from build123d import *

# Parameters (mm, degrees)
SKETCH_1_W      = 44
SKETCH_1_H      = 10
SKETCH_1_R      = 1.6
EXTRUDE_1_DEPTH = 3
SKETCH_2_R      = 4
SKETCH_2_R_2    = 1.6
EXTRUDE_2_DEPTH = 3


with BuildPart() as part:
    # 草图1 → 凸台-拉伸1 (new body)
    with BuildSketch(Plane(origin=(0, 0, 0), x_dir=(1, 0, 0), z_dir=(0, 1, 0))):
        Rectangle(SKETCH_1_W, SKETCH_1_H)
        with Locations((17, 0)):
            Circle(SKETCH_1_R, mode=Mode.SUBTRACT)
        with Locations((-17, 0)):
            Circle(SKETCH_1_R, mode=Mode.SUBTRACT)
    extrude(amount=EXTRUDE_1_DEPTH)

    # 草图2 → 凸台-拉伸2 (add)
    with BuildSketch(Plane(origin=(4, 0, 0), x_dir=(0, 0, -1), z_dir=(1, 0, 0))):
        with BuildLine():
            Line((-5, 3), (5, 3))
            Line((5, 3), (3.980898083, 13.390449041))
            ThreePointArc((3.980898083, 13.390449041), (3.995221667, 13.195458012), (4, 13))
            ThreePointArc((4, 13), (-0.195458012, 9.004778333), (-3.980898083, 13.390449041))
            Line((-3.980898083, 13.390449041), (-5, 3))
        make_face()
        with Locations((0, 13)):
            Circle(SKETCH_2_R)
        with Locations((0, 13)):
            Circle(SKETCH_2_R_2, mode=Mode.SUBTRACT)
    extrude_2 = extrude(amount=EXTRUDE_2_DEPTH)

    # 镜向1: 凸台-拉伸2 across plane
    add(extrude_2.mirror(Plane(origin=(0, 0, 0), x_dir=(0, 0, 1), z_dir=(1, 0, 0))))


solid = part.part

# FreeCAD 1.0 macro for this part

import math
import FreeCAD as App
import Part
import Sketcher

V = App.Vector


def add_polygon(sketch, points):
    """Adds a closed chain of lines whose ends are joined by coincident constraints."""
    first, n = sketch.GeometryCount, len(points)
    for a, b in zip(points, points[1:] + points[:1]):
        sketch.addGeometry(Part.LineSegment(App.Vector(*a, 0), App.Vector(*b, 0)), False)
    for i in range(n):
        sketch.addConstraint(Sketcher.Constraint("Coincident", first + i, 2, first + (i + 1) % n, 1))

doc = App.newDocument("Part")
params = doc.addObject("Spreadsheet::Sheet", "Params")
for row, (alias, value) in enumerate([
    ("sketch1_diameter", "3.2 mm"),
    ("sketch1_width", "44 mm"),
    ("sketch1_height", "10 mm"),
    ("pad1_length", "3 mm"),
    ("sketch2_radius", "4 mm"),
    ("sketch2_diameter", "3.2 mm"),
    ("sketch2_height", "10 mm"),
    ("pad2_length", "3 mm"),
], start=1):
    params.set(f"A{row}", alias)
    params.set(f"B{row}", "=" + value)
    params.setAlias(f"B{row}", alias)

body = doc.addObject("PartDesign::Body", "Body")

# Sketch on XZ plane
sketch1 = body.newObject("Sketcher::SketchObject", "Sketch")
sketch1.AttachmentSupport = (doc.getObject("XZ_Plane"), [""])
sketch1.MapMode = "FlatFace"
add_polygon(sketch1, [(-22, -5), (-22, 5), (22, 5), (22, -5)])  # lines 0-3
sketch1.addGeometry(Part.Circle(V(-17, 0, 0), V(0, 0, 1), 1.6), False)  # 4
sketch1.addGeometry(Part.Circle(V(17, 0, 0), V(0, 0, 1), 1.6), False)  # 5
sketch1.addConstraint([
    Sketcher.Constraint("Vertical", 0),
    Sketcher.Constraint("Horizontal", 1),
    Sketcher.Constraint("Vertical", 2),
    Sketcher.Constraint("Horizontal", 3),
    Sketcher.Constraint("Equal", 4, 5),
    Sketcher.Constraint("Symmetric", 4, 3, 5, 3, -1, 1),
    Sketcher.Constraint("Symmetric", 0, 2, 2, 2, -1, 1),
    Sketcher.Constraint("PointOnObject", 4, 3, -1),
    Sketcher.Constraint("Diameter", 4, 3.2),
    Sketcher.Constraint("DistanceX", 1, 1, 1, 2, 44.0),
    Sketcher.Constraint("DistanceY", 0, 1, 0, 2, 10.0),
    Sketcher.Constraint("DistanceX", 4, 3, -1, 1, 17.0),
])
sketch1.setExpression("Constraints[12]", "Params.sketch1_diameter")
sketch1.setExpression("Constraints[13]", "Params.sketch1_width")
sketch1.setExpression("Constraints[14]", "Params.sketch1_height")
pad1 = body.newObject("PartDesign::Pad", "Pad")
pad1.Profile = sketch1
pad1.setExpression("Length", "Params.pad1_length")
pad1.Reversed = True

# Sketch on YZ plane
sketch2 = body.newObject("Sketcher::SketchObject", "Sketch001")
sketch2.AttachmentSupport = (doc.getObject("YZ_Plane"), [""])
sketch2.MapMode = "FlatFace"
sketch2.AttachmentOffset = App.Placement(V(0, 0, 4), App.Rotation())
sketch2.addGeometry([
    Part.LineSegment(V(3, 5, 0), V(3, -5, 0)),  # 0
    Part.LineSegment(V(3, -5, 0), V(13.390449, -3.980898, 0)),  # 1
    Part.ArcOfCircle(Part.Circle(V(13, 0, 0), V(0, 0, 1), 4), math.radians(-84.39831), math.radians(84.39831)),  # 2
    Part.LineSegment(V(13.390449, 3.980898, 0), V(3, 5, 0)),  # 3
    Part.Circle(V(13, 0, 0), V(0, 0, 1), 1.6),  # 4
], False)
sketch2.addConstraint([
    Sketcher.Constraint("Coincident", 0, 2, 1, 1),
    Sketcher.Constraint("Tangent", 1, 2, 2, 1),
    Sketcher.Constraint("Tangent", 2, 2, 3, 1),
    Sketcher.Constraint("Coincident", 3, 2, 0, 1),
    Sketcher.Constraint("Vertical", 0),
    Sketcher.Constraint("Coincident", 4, 3, 2, 3),
    Sketcher.Constraint("Symmetric", 1, 2, 2, 2, -1),
    Sketcher.Constraint("Radius", 2, 4.0),
    Sketcher.Constraint("Diameter", 4, 3.2),
    Sketcher.Constraint("DistanceY", 0, 2, 0, 1, 10.0),
    Sketcher.Constraint("DistanceX", -1, 1, 2, 3, 13.0),
    Sketcher.Constraint("DistanceX", -1, 1, 0, 2, 3.0),
])
sketch2.setExpression("Constraints[7]", "Params.sketch2_radius")
sketch2.setExpression("Constraints[8]", "Params.sketch2_diameter")
sketch2.setExpression("Constraints[9]", "Params.sketch2_height")
pad2 = body.newObject("PartDesign::Pad", "Pad001")
pad2.Profile = sketch2
pad2.setExpression("Length", "Params.pad2_length")
doc.recompute()

mirrored = body.newObject("PartDesign::Mirrored", "Mirrored")
mirrored.Originals = [pad2]
mirrored.MirrorPlane = (doc.getObject("YZ_Plane"), [""])
body.Tip = mirrored

doc.recompute()
